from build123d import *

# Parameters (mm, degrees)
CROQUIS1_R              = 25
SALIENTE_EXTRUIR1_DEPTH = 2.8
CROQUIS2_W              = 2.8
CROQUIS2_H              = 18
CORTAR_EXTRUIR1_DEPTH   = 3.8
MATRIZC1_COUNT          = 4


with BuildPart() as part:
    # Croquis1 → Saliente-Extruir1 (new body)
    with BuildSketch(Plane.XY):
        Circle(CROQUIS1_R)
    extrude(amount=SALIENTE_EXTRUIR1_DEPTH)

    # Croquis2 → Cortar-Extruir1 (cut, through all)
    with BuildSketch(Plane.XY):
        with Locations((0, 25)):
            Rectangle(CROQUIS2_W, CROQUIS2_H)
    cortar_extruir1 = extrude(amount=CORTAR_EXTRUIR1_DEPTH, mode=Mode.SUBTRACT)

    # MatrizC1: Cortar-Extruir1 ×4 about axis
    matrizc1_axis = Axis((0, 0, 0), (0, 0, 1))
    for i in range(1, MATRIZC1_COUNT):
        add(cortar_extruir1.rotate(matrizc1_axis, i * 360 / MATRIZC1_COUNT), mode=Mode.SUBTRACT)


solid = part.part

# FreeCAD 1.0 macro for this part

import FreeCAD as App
import Part
import Sketcher
from FreeCAD import Vector


def add_polygon(sketch, points):
    """Adds a closed chain of lines whose ends are joined by coincident constraints."""
    first, n = sketch.GeometryCount, len(points)
    for a, b in zip(points, points[1:] + points[:1]):
        sketch.addGeometry(Part.LineSegment(App.Vector(*a, 0), App.Vector(*b, 0)), False)
    for i in range(n):
        sketch.addConstraint(Sketcher.Constraint("Coincident", first + i, 2, first + (i + 1) % n, 1))

doc = App.newDocument("Part")
params = doc.addObject("Spreadsheet::Sheet", "Params")
for row, (alias, value) in enumerate([
    ("sketch1_diameter", "50 mm"),
    ("pad1_length", "2.8 mm"),
    ("sketch2_height", "18 mm"),
    ("sketch2_width", "2.8 mm"),
], start=1):
    params.set(f"A{row}", alias)
    params.set(f"B{row}", "=" + value)
    params.setAlias(f"B{row}", alias)

body = doc.addObject("PartDesign::Body", "Body")

# Sketch on XY plane
sketch1 = body.newObject("Sketcher::SketchObject", "Sketch")
sketch1.AttachmentSupport = (doc.getObject("XY_Plane"), [""])
sketch1.MapMode = "FlatFace"
sketch1.addGeometry(Part.Circle(Vector(0, 0, 0), Vector(0, 0, 1), 25), False)
sketch1.addConstraint(Sketcher.Constraint("Coincident", 0, 3, -1, 1))
sketch1.addConstraint(Sketcher.Constraint("Diameter", 0, 50.0))
sketch1.setExpression("Constraints[1]", "Params.sketch1_diameter")
pad1 = body.newObject("PartDesign::Pad", "Pad")
pad1.Profile = sketch1
pad1.setExpression("Length", "Params.pad1_length")

# Sketch on XY plane
sketch2 = body.newObject("Sketcher::SketchObject", "Sketch001")
sketch2.AttachmentSupport = (doc.getObject("XY_Plane"), [""])
sketch2.MapMode = "FlatFace"
add_polygon(sketch2, [(-1.4, 34), (-1.4, 16), (1.4, 16), (1.4, 34)])  # lines 0-3
sketch2.addConstraint(Sketcher.Constraint("Vertical", 0))
sketch2.addConstraint(Sketcher.Constraint("Horizontal", 1))
sketch2.addConstraint(Sketcher.Constraint("Vertical", 2))
sketch2.addConstraint(Sketcher.Constraint("Horizontal", 3))
sketch2.addConstraint(Sketcher.Constraint("DistanceY", 0, 2, 0, 1, 18.0))
sketch2.addConstraint(Sketcher.Constraint("DistanceX", 1, 1, 1, 2, 2.8))
sketch2.addConstraint(Sketcher.Constraint("DistanceY", -1, 1, 0, 2, 16.0))
sketch2.addConstraint(Sketcher.Constraint("DistanceX", 0, 2, -1, 1, 1.4))
sketch2.setExpression("Constraints[8]", "Params.sketch2_height")
sketch2.setExpression("Constraints[9]", "Params.sketch2_width")
pocket1 = body.newObject("PartDesign::Pocket", "Pocket")
pocket1.Profile = sketch2
pocket1.Type = "ThroughAll"
pocket1.Reversed = True
doc.recompute()

polarpattern = body.newObject("PartDesign::PolarPattern", "PolarPattern")
polarpattern.Originals = [pocket1]
polarpattern.Axis = (doc.getObject("Z_Axis"), [""])
polarpattern.Angle = 360
polarpattern.Occurrences = 4
body.Tip = polarpattern

doc.recompute()
